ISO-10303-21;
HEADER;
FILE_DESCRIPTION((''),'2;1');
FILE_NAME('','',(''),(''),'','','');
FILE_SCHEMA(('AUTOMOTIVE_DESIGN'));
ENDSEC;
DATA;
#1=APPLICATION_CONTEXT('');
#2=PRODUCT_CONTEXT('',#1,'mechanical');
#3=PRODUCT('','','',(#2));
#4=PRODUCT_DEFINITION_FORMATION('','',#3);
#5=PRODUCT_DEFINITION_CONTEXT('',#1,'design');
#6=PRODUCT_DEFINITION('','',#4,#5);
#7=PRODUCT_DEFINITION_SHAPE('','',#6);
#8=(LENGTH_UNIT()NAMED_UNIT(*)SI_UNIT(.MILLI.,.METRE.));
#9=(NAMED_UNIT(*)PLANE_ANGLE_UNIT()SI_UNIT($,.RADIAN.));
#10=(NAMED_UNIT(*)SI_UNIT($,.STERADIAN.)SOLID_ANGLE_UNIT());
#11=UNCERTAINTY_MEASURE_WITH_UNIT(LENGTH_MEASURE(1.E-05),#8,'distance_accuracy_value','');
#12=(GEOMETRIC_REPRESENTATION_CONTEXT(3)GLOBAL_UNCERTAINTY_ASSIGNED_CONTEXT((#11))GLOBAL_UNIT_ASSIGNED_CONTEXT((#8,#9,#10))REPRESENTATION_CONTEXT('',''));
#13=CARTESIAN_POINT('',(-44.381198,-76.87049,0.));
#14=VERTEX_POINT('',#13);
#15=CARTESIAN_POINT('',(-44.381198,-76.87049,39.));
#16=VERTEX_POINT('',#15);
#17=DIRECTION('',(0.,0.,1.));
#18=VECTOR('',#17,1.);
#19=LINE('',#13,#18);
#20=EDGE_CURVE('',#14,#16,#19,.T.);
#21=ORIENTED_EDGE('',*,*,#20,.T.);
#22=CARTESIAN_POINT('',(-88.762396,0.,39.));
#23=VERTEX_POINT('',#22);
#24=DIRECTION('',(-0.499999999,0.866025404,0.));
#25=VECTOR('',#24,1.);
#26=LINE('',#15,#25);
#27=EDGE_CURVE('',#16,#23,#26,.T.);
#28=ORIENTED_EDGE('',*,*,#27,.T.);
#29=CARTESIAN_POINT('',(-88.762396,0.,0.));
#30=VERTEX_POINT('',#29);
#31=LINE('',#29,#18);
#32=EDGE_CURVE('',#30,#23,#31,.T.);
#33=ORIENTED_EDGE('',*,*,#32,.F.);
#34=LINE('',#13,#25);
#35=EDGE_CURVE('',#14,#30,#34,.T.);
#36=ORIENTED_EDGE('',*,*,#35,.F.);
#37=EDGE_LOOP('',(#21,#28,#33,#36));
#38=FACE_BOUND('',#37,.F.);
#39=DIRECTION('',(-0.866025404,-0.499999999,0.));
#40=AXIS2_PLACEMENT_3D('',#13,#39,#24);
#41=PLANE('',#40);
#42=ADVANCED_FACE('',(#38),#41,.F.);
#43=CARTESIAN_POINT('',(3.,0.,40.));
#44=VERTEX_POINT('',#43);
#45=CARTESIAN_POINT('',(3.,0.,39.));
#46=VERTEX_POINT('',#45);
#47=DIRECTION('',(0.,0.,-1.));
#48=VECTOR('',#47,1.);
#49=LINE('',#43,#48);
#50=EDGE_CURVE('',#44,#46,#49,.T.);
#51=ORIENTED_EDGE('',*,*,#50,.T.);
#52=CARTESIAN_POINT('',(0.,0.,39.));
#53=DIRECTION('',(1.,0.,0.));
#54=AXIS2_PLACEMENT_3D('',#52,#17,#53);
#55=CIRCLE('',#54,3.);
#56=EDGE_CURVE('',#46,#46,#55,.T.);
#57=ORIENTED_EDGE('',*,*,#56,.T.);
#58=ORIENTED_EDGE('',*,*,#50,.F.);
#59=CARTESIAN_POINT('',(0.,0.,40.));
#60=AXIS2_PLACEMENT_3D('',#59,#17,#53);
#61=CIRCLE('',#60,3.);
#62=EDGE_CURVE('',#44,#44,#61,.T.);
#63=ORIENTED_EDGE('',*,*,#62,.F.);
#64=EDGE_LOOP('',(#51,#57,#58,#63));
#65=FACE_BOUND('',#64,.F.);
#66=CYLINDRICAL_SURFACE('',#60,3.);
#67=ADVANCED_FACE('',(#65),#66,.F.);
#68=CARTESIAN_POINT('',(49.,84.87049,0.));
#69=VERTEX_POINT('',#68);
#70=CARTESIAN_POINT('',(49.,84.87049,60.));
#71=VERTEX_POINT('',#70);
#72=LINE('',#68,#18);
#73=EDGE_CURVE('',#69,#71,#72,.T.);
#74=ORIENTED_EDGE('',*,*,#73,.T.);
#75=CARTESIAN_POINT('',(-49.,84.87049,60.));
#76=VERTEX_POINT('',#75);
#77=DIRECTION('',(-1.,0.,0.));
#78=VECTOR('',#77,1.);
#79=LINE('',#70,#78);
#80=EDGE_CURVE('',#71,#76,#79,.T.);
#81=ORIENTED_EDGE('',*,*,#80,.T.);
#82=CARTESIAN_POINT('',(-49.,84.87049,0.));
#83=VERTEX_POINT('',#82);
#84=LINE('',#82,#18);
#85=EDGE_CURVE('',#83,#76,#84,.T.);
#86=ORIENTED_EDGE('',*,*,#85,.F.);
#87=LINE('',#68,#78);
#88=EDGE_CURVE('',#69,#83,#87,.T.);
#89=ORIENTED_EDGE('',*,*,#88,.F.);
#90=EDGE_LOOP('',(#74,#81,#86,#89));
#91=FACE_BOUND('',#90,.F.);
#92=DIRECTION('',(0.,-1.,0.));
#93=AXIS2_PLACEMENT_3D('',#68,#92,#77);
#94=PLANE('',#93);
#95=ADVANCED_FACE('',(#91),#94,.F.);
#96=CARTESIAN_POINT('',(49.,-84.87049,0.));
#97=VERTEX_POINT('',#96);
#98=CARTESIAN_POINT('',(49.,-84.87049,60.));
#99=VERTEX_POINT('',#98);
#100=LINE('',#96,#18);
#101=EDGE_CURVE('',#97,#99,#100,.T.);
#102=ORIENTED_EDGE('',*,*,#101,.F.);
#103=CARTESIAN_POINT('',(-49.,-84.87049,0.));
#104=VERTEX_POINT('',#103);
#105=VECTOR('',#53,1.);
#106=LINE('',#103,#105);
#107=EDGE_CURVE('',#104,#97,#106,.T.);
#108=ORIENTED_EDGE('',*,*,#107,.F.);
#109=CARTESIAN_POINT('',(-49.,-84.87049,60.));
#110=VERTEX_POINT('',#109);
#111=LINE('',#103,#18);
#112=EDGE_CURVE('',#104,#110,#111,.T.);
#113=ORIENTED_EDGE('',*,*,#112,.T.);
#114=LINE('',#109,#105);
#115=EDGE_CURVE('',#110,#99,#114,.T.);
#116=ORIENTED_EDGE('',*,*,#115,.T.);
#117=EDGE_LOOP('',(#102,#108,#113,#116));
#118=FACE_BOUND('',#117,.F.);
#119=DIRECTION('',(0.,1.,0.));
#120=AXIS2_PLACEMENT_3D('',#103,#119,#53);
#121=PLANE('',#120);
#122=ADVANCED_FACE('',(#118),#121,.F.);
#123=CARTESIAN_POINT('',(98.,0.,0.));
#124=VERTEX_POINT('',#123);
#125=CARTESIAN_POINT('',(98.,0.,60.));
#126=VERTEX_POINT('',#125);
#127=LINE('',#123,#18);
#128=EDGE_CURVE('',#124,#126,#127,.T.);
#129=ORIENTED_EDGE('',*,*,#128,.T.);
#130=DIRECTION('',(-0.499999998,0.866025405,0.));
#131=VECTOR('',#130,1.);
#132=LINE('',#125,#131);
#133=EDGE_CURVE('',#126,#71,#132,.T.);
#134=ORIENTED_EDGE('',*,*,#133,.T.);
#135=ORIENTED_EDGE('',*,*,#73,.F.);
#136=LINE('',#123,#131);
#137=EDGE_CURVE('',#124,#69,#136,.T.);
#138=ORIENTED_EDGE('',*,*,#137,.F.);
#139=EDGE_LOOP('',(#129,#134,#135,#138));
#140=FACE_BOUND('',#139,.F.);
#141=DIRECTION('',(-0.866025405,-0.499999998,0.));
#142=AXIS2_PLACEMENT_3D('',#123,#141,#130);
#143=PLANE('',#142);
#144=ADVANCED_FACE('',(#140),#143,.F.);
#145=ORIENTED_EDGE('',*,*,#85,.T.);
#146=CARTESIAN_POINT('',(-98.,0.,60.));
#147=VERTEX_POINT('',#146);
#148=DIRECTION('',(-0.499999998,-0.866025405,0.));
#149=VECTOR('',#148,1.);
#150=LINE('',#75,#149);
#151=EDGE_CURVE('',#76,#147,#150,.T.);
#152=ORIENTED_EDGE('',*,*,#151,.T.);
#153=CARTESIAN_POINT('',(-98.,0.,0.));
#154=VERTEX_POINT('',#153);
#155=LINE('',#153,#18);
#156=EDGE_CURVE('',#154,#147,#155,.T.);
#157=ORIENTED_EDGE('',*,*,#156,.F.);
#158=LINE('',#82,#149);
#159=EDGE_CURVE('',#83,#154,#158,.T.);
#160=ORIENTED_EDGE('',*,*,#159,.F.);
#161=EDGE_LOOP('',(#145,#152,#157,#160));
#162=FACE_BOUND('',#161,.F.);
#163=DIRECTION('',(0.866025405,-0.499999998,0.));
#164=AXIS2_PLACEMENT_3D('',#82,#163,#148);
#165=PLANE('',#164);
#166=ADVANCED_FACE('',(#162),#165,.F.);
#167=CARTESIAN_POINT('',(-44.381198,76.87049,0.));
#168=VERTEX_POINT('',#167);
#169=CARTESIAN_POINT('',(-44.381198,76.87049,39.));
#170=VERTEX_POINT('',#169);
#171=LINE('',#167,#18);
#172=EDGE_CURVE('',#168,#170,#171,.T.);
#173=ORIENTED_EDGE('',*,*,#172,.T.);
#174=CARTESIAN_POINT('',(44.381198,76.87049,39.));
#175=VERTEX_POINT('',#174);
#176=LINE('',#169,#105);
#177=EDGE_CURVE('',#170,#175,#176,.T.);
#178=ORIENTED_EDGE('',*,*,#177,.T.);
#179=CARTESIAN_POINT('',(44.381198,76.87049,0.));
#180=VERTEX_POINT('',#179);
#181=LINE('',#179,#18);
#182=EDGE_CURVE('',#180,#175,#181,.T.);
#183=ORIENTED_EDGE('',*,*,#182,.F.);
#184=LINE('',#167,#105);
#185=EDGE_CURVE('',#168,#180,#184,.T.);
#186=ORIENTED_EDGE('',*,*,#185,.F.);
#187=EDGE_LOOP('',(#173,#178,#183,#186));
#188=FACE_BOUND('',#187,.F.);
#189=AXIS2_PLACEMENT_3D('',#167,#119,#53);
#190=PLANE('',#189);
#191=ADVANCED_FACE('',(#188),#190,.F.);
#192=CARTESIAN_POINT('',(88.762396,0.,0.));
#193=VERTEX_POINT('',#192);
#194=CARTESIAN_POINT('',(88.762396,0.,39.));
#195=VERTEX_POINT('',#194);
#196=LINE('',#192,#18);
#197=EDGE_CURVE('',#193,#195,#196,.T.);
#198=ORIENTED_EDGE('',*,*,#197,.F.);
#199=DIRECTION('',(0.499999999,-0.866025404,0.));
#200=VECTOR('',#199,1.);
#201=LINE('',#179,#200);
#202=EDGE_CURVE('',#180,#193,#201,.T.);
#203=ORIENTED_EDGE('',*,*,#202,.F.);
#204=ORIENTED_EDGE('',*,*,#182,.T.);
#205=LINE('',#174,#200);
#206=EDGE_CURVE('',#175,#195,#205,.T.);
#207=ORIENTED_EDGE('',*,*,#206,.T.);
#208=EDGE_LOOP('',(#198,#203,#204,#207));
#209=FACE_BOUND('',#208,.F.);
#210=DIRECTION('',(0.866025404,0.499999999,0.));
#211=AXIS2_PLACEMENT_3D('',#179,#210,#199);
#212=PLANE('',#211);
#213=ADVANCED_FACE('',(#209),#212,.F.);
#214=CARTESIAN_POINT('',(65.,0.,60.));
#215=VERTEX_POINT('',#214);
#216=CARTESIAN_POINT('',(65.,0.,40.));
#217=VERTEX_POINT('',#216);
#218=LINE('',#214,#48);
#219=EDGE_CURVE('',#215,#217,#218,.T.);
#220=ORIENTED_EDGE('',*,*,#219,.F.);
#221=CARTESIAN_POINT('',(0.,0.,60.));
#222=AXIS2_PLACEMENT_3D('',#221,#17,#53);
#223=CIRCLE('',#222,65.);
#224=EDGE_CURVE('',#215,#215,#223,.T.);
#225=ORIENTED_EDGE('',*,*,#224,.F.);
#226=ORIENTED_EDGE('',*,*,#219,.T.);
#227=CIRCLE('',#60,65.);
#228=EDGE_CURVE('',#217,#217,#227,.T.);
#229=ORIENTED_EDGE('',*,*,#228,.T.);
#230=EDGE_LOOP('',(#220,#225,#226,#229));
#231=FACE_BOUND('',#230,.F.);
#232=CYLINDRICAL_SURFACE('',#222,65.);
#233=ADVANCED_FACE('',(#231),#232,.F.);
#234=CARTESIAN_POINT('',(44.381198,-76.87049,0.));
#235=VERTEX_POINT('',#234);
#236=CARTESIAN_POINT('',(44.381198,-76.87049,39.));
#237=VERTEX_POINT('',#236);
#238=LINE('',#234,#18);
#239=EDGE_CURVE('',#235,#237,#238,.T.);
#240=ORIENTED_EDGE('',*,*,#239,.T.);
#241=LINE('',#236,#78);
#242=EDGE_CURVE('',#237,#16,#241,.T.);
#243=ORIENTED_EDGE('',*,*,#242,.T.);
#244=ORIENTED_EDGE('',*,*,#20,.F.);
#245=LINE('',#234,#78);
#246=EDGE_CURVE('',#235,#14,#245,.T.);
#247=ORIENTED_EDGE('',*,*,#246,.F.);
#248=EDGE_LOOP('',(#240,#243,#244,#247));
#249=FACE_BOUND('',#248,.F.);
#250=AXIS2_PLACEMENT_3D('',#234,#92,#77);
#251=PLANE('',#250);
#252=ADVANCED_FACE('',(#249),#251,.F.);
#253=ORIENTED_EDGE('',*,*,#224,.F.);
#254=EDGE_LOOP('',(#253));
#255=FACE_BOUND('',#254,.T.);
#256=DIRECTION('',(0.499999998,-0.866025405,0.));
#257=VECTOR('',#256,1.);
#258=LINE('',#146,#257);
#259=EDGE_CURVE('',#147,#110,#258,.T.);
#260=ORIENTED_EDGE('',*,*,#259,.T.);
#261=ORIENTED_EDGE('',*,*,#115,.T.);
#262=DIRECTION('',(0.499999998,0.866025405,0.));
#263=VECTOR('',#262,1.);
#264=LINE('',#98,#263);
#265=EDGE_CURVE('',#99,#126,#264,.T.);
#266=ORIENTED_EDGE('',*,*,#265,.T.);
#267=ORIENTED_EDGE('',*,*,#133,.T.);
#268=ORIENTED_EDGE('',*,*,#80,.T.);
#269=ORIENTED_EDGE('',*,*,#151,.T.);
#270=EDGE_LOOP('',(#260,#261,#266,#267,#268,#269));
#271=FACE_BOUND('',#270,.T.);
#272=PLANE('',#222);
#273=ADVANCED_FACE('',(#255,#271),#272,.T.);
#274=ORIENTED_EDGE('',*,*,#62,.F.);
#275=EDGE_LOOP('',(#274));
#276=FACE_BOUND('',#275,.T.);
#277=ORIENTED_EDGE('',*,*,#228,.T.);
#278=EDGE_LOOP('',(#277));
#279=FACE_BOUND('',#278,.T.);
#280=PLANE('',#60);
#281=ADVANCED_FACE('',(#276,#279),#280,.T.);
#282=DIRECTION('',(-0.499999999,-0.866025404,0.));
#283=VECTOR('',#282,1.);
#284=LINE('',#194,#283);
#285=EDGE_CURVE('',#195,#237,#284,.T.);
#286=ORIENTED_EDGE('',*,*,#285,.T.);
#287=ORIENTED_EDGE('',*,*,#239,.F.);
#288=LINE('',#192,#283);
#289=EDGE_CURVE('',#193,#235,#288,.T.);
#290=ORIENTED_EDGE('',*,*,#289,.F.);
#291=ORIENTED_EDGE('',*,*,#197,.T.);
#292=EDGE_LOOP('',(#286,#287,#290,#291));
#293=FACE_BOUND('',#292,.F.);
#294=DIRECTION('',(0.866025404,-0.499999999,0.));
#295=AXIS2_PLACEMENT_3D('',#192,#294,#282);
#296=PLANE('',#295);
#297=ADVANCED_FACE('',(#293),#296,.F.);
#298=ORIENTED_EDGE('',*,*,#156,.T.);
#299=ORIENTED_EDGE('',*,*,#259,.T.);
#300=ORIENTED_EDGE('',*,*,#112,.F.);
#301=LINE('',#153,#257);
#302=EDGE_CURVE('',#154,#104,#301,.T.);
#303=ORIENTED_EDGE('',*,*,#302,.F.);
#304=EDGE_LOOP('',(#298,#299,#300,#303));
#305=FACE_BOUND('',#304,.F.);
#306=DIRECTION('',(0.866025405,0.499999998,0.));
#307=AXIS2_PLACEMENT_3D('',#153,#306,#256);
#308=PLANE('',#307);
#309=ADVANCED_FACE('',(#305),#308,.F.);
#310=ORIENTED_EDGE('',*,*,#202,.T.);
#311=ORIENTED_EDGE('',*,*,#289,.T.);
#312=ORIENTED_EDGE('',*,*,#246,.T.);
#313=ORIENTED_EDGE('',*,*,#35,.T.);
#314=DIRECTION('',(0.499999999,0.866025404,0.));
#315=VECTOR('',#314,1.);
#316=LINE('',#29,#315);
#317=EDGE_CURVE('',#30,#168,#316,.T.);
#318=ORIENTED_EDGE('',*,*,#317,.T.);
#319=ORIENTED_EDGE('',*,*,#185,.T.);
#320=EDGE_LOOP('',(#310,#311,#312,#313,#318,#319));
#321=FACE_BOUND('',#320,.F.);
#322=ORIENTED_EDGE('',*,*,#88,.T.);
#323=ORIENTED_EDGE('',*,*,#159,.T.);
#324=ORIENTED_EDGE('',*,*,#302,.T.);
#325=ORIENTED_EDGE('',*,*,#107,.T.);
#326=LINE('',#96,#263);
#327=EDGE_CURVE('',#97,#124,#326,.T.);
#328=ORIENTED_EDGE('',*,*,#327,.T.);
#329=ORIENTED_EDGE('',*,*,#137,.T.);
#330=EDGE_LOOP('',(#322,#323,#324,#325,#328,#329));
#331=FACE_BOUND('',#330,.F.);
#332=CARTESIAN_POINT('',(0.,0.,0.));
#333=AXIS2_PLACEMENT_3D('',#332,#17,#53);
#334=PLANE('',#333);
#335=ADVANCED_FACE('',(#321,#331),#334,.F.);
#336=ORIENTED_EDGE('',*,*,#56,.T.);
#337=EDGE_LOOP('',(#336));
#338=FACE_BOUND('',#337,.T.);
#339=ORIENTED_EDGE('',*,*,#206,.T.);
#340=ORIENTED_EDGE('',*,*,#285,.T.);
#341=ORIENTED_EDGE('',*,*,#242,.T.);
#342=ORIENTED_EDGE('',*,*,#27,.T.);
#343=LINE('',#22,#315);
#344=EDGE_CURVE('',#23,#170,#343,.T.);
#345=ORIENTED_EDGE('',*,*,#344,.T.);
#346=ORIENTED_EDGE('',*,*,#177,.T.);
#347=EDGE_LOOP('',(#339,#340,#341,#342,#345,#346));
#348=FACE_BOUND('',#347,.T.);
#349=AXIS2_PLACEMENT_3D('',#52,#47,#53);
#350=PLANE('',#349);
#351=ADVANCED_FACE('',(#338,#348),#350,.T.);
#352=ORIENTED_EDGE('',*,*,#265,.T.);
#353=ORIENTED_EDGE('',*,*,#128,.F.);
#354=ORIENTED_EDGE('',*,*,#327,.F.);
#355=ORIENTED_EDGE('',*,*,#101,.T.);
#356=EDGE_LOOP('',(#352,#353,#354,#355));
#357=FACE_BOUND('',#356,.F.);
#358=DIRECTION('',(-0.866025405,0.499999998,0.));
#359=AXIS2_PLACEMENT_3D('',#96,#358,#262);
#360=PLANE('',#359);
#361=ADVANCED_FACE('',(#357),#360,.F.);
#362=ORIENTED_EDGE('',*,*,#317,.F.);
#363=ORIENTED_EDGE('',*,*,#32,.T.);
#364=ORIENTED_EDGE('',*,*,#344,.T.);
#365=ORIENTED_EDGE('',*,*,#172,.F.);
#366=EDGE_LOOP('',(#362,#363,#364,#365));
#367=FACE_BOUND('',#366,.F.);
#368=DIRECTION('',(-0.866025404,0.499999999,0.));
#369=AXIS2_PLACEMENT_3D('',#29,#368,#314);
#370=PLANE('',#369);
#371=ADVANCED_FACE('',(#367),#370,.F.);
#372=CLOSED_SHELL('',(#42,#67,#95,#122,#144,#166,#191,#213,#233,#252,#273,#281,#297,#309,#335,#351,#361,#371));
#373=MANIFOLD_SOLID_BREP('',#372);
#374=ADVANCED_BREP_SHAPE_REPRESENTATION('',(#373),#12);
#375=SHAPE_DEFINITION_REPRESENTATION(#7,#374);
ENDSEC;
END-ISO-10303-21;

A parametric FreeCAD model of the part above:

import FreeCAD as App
import Part
import Sketcher
Q = App.Units.Quantity

doc = App.newDocument("Part")
body = doc.addObject("PartDesign::Body", "Body")

sketch1 = body.newObject("Sketcher::SketchObject", "Sketch")
sketch1.AttachmentSupport = (doc.getObject("XY_Plane"), [""])
sketch1.MapMode = "FlatFace"
sketch1.addGeometry(Part.LineSegment(App.Vector(49, 85, 0), App.Vector(-49, 85, 0)), False)
sketch1.addGeometry(Part.LineSegment(App.Vector(-49, 85, 0), App.Vector(-98, 0, 0)), False)
sketch1.addGeometry(Part.LineSegment(App.Vector(-98, 0, 0), App.Vector(-49, -85, 0)), False)
sketch1.addGeometry(Part.LineSegment(App.Vector(-49, -85, 0), App.Vector(49, -85, 0)), False)
sketch1.addGeometry(Part.LineSegment(App.Vector(49, -85, 0), App.Vector(98, 0, 0)), False)
sketch1.addGeometry(Part.LineSegment(App.Vector(98, 0, 0), App.Vector(49, 85, 0)), False)
sketch1.addConstraint(Sketcher.Constraint("Coincident", 0, 2, 1, 1))
sketch1.addConstraint(Sketcher.Constraint("Coincident", 1, 2, 2, 1))
sketch1.addConstraint(Sketcher.Constraint("Coincident", 2, 2, 3, 1))
sketch1.addConstraint(Sketcher.Constraint("Coincident", 3, 2, 4, 1))
sketch1.addConstraint(Sketcher.Constraint("Coincident", 4, 2, 5, 1))
sketch1.addConstraint(Sketcher.Constraint("Coincident", 5, 2, 0, 1))
sketch1.addConstraint(Sketcher.Constraint("Horizontal", 0))
sketch1.addConstraint(Sketcher.Constraint("Horizontal", 3))
sketch1.addConstraint(Sketcher.Constraint("Symmetric", 0, 2, 3, 2, -1, 1))
sketch1.addConstraint(Sketcher.Constraint("Symmetric", 1, 2, 4, 2, -1, 1))
sketch1.addConstraint(Sketcher.Constraint("PointOnObject", 1, 2, -1))
sketch1.addConstraint(Sketcher.Constraint("Parallel", 2, 5))
sketch1.addConstraint(Sketcher.Constraint("Vertical", 0, 2, 2, 2))
sketch1.addConstraint(Sketcher.Constraint("DistanceX", 0, 2, 0, 1, 98.0))
sketch1.addConstraint(Sketcher.Constraint("Angle", 1, Q("-120 deg")))
sketch1.addConstraint(Sketcher.Constraint("Distance", 1, 98.0))
pad1 = body.newObject("PartDesign::Pad", "Pad")
pad1.Profile = sketch1
pad1.Length = 60

sketch2 = body.newObject("Sketcher::SketchObject", "Sketch001")
sketch2.AttachmentSupport = (doc.getObject("XY_Plane"), [""])
sketch2.MapMode = "FlatFace"
sketch2.AttachmentOffset = App.Placement(App.Vector(0, 0, 60), App.Rotation())
sketch2.addGeometry(Part.Circle(App.Vector(0, 0, 0), App.Vector(0, 0, 1), 65), False)
sketch2.addConstraint(Sketcher.Constraint("Coincident", 0, 3, -1, 1))
sketch2.addConstraint(Sketcher.Constraint("Diameter", 0, 130.0))
pocket1 = body.newObject("PartDesign::Pocket", "Pocket")
pocket1.Profile = sketch2
pocket1.Length = 20

sketch3 = body.newObject("Sketcher::SketchObject", "Sketch002")
sketch3.AttachmentSupport = (doc.getObject("XY_Plane"), [""])
sketch3.MapMode = "FlatFace"
sketch3.addGeometry(Part.LineSegment(App.Vector(44, -77, 0), App.Vector(-44, -77, 0)), False)
sketch3.addGeometry(Part.LineSegment(App.Vector(-44, -77, 0), App.Vector(-89, 0, 0)), False)
sketch3.addGeometry(Part.LineSegment(App.Vector(-89, 0, 0), App.Vector(-44, 77, 0)), False)
sketch3.addGeometry(Part.LineSegment(App.Vector(-44, 77, 0), App.Vector(44, 77, 0)), False)
sketch3.addGeometry(Part.LineSegment(App.Vector(44, 77, 0), App.Vector(89, 0, 0)), False)
sketch3.addGeometry(Part.LineSegment(App.Vector(89, 0, 0), App.Vector(44, -77, 0)), False)
sketch3.addConstraint(Sketcher.Constraint("Coincident", 0, 2, 1, 1))
sketch3.addConstraint(Sketcher.Constraint("Coincident", 1, 2, 2, 1))
sketch3.addConstraint(Sketcher.Constraint("Coincident", 2, 2, 3, 1))
sketch3.addConstraint(Sketcher.Constraint("Coincident", 3, 2, 4, 1))
sketch3.addConstraint(Sketcher.Constraint("Coincident", 4, 2, 5, 1))
sketch3.addConstraint(Sketcher.Constraint("Coincident", 5, 2, 0, 1))
sketch3.addConstraint(Sketcher.Constraint("Horizontal", 0))
sketch3.addConstraint(Sketcher.Constraint("Horizontal", 3))
sketch3.addConstraint(Sketcher.Constraint("Symmetric", 0, 2, 3, 2, -1, 1))
sketch3.addConstraint(Sketcher.Constraint("Symmetric", 1, 2, 4, 2, -1, 1))
sketch3.addConstraint(Sketcher.Constraint("PointOnObject", 1, 2, -1))
sketch3.addConstraint(Sketcher.Constraint("Parallel", 2, 5))
sketch3.addConstraint(Sketcher.Constraint("Vertical", 0, 2, 2, 2))
sketch3.addConstraint(Sketcher.Constraint("Angle", 1, Q("120 deg")))
sketch3.addConstraint(Sketcher.Constraint("DistanceX", 0, 2, 0, 1, 88.762396))
sketch3.addConstraint(Sketcher.Constraint("DistanceY", 0, 2, -1, 1, 76.87049))
pocket2 = body.newObject("PartDesign::Pocket", "Pocket001")
pocket2.Profile = sketch3
pocket2.Length = 39
pocket2.Reversed = True

sketch4 = body.newObject("Sketcher::SketchObject", "Sketch003")
sketch4.AttachmentSupport = (doc.getObject("XY_Plane"), [""])
sketch4.MapMode = "FlatFace"
sketch4.AttachmentOffset = App.Placement(App.Vector(0, 0, 40), App.Rotation())
sketch4.addGeometry(Part.Circle(App.Vector(0, 0, 0), App.Vector(0, 0, 1), 3), False)
sketch4.addConstraint(Sketcher.Constraint("Coincident", 0, 3, -1, 1))
sketch4.addConstraint(Sketcher.Constraint("Diameter", 0, 6.0))
pocket3 = body.newObject("PartDesign::Pocket", "Pocket002")
pocket3.Profile = sketch4
pocket3.Type = "ThroughAll"

doc.recompute()
